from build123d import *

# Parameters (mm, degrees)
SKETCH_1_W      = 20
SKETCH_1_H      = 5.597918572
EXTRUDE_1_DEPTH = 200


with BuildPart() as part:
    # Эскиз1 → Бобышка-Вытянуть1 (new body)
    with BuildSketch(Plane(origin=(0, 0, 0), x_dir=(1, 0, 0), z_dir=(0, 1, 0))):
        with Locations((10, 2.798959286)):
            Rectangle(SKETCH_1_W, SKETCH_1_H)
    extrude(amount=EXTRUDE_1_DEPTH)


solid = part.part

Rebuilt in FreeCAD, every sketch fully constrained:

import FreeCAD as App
import Part
import Sketcher

doc = App.newDocument("Part")
body = doc.addObject("PartDesign::Body", "Body")

sketch1 = body.newObject("Sketcher::SketchObject", "Sketch")
sketch1.AttachmentSupport = (doc.getObject("XZ_Plane"), [""])
sketch1.MapMode = "FlatFace"
sketch1.addGeometry([
    Part.LineSegment(App.Vector(0, -5.597919, 0), App.Vector(0, 0, 0)),
    Part.LineSegment(App.Vector(0, 0, 0), App.Vector(20, 0, 0)),
    Part.LineSegment(App.Vector(20, 0, 0), App.Vector(20, -5.597919, 0)),
    Part.LineSegment(App.Vector(20, -5.597919, 0), App.Vector(0, -5.597919, 0)),
], False)
sketch1.addConstraint([
    Sketcher.Constraint("Coincident", 0, 2, 1, 1),
    Sketcher.Constraint("Coincident", 1, 2, 2, 1),
    Sketcher.Constraint("Coincident", 2, 2, 3, 1),
    Sketcher.Constraint("Coincident", 3, 2, 0, 1),
    Sketcher.Constraint("Vertical", 0),
    Sketcher.Constraint("Horizontal", 1),
    Sketcher.Constraint("Vertical", 2),
    Sketcher.Constraint("Horizontal", 3),
    Sketcher.Constraint("Coincident", 0, 2, -1, 1),
    Sketcher.Constraint("DistanceX", 1, 1, 1, 2, 20.0),
    Sketcher.Constraint("DistanceY", 0, 1, 0, 2, 5.597919),
])
pad1 = body.newObject("PartDesign::Pad", "Pad")
pad1.Profile = sketch1
pad1.Length = 200
pad1.Reversed = True

doc.recompute()
